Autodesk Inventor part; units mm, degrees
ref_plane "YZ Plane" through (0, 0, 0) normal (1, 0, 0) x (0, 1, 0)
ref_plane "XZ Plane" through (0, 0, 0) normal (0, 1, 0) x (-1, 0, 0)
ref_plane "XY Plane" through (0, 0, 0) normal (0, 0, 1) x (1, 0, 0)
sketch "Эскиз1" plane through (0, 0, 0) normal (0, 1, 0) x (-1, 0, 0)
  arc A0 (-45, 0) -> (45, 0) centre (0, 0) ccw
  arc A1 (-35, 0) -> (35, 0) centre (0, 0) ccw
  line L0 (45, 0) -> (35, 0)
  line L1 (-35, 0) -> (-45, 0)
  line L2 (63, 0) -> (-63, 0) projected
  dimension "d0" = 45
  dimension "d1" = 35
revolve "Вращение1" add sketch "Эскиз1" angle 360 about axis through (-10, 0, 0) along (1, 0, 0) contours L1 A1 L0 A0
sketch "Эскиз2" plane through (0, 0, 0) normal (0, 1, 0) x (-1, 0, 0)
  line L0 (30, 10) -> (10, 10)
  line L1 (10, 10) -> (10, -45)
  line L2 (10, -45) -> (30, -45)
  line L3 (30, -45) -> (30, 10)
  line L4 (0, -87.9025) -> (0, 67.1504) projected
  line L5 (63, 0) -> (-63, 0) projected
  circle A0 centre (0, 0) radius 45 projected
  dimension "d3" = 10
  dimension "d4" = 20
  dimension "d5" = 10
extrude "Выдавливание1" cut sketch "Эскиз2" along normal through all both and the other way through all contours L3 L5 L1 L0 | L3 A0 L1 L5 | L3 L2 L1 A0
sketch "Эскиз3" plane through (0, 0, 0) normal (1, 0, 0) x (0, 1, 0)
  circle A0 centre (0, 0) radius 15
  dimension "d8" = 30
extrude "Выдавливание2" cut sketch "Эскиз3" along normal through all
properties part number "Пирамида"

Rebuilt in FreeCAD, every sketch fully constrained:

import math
import FreeCAD as App
import Part
import Sketcher

V = App.Vector


def add_polygon(sketch, points):
    """Adds a closed chain of lines whose ends are joined by coincident constraints."""
    first, n = sketch.GeometryCount, len(points)
    for a, b in zip(points, points[1:] + points[:1]):
        sketch.addGeometry(Part.LineSegment(App.Vector(*a, 0), App.Vector(*b, 0)), False)
    for i in range(n):
        sketch.addConstraint(Sketcher.Constraint("Coincident", first + i, 2, first + (i + 1) % n, 1))

doc = App.newDocument("Part")
body = doc.addObject("PartDesign::Body", "Body")

# Sketch on XZ plane
sketch1 = body.newObject("Sketcher::SketchObject", "Sketch")
sketch1.AttachmentSupport = (doc.getObject("XZ_Plane"), [""])
sketch1.MapMode = "FlatFace"
sketch1.addGeometry([
    Part.LineSegment(V(35, 0, 0), V(45, 0, 0)),
    Part.ArcOfCircle(Part.Circle(V(0, 0, 0), V(0, 0, 1), 45), math.radians(180), math.radians(360)),
    Part.LineSegment(V(-45, 0, 0), V(-35, 0, 0)),
    Part.ArcOfCircle(Part.Circle(V(0, 0, 0), V(0, 0, 1), 35), math.radians(180), math.radians(360)),
], False)
sketch1.addConstraint([
    Sketcher.Constraint("Coincident", 0, 2, 1, 2),
    Sketcher.Constraint("Coincident", 1, 1, 2, 1),
    Sketcher.Constraint("Coincident", 2, 2, 3, 1),
    Sketcher.Constraint("Coincident", 3, 2, 0, 1),
    Sketcher.Constraint("Horizontal", 0),
    Sketcher.Constraint("Horizontal", 2),
    Sketcher.Constraint("Coincident", 1, 3, -1, 1),
    Sketcher.Constraint("Coincident", 3, 3, -1, 1),
    Sketcher.Constraint("PointOnObject", 0, 2, -1),
    Sketcher.Constraint("PointOnObject", 1, 1, -1),
    Sketcher.Constraint("Radius", 1, 45.0),
    Sketcher.Constraint("Radius", 3, 35.0),
])
revolution = body.newObject("PartDesign::Revolution", "Revolution")
revolution.Profile = sketch1
revolution.ReferenceAxis = (sketch1, ["H_Axis"])
revolution.Angle = 360

# Sketch on XZ plane
sketch2 = body.newObject("Sketcher::SketchObject", "Sketch001")
sketch2.AttachmentSupport = (doc.getObject("XZ_Plane"), [""])
sketch2.MapMode = "FlatFace"
add_polygon(sketch2, [(-30, 10), (-10, 10), (-10, -45), (-30, -45)])  # lines 0-3
sketch2.addConstraint([
    Sketcher.Constraint("Horizontal", 0),
    Sketcher.Constraint("Vertical", 1),
    Sketcher.Constraint("Horizontal", 2),
    Sketcher.Constraint("Vertical", 3),
    Sketcher.Constraint("DistanceX", 0, 1, 0, 2, 20.0),
    Sketcher.Constraint("DistanceX", 0, 2, -1, 1, 10.0),
    Sketcher.Constraint("DistanceY", -1, 1, 0, 2, 10.0),
    Sketcher.Constraint("DistanceY", 1, 2, 1, 1, 55.0),
])
pocket1 = body.newObject("PartDesign::Pocket", "Pocket")
pocket1.Profile = sketch2
pocket1.Type = "ThroughAll"
pocket1.Midplane = True

# Sketch on YZ plane
sketch3 = body.newObject("Sketcher::SketchObject", "Sketch002")
sketch3.AttachmentSupport = (doc.getObject("YZ_Plane"), [""])
sketch3.MapMode = "FlatFace"
sketch3.addGeometry(Part.Circle(V(0, 0, 0), V(0, 0, 1), 15), False)
sketch3.addConstraint([
    Sketcher.Constraint("Coincident", 0, 3, -1, 1),
    Sketcher.Constraint("Diameter", 0, 30.0),
])
pocket2 = body.newObject("PartDesign::Pocket", "Pocket001")
pocket2.Profile = sketch3
pocket2.Type = "ThroughAll"
pocket2.Reversed = True

doc.recompute()
